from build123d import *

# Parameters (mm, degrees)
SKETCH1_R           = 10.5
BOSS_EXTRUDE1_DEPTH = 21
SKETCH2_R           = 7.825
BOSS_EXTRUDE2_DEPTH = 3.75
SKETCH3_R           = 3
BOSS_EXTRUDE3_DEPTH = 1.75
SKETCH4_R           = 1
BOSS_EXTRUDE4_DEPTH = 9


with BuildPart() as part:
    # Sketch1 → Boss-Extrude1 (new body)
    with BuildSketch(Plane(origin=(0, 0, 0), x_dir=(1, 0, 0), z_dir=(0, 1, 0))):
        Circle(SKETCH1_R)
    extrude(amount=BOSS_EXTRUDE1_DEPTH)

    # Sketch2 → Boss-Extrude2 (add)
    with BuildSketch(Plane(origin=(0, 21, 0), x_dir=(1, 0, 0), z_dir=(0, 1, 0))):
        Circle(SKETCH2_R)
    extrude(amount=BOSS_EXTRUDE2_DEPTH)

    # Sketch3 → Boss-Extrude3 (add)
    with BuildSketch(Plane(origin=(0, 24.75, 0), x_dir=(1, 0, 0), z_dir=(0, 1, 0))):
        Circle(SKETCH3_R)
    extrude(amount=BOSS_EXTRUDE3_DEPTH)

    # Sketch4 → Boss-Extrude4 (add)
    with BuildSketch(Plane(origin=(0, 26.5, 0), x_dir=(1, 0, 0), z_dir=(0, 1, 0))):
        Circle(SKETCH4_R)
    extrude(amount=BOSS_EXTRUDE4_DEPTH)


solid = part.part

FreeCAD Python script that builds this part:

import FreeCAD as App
import Part
import Sketcher

doc = App.newDocument("Part")
body = doc.addObject("PartDesign::Body", "Body")

# Sketch on XZ plane
sketch1 = doc.addObject("Sketcher::SketchObject", "Sketch")
body.addObject(sketch1)
sketch1.AttachmentSupport = (doc.XZ_Plane, [""])
sketch1.MapMode = "FlatFace"
sketch1.addGeometry(Part.Circle(App.Vector(0, 0, 0), App.Vector(0, 0, 1), 10), False)
sketch1.addConstraint([
    Sketcher.Constraint("Coincident", 0, 3, -1, 1),
    Sketcher.Constraint("Diameter", 0, 21.0),
])
pad1 = doc.addObject("PartDesign::Pad", "Pad")
body.addObject(pad1)
pad1.Profile = sketch1
pad1.Length = 21
pad1.Reversed = True

# Sketch on XZ plane
sketch2 = doc.addObject("Sketcher::SketchObject", "Sketch001")
body.addObject(sketch2)
sketch2.AttachmentSupport = (doc.XZ_Plane, [""])
sketch2.MapMode = "FlatFace"
sketch2.AttachmentOffset = App.Placement(App.Vector(0, 0, -21), App.Rotation())
sketch2.addGeometry(Part.Circle(App.Vector(0, 0, 0), App.Vector(0, 0, 1), 8), False)
sketch2.addConstraint([
    Sketcher.Constraint("Coincident", 0, 3, -1, 1),
    Sketcher.Constraint("Diameter", 0, 15.65),
])
pad2 = doc.addObject("PartDesign::Pad", "Pad001")
body.addObject(pad2)
pad2.Profile = sketch2
pad2.Length = 3.75
pad2.Reversed = True

# Sketch on XZ plane
sketch3 = doc.addObject("Sketcher::SketchObject", "Sketch002")
body.addObject(sketch3)
sketch3.AttachmentSupport = (doc.XZ_Plane, [""])
sketch3.MapMode = "FlatFace"
sketch3.AttachmentOffset = App.Placement(App.Vector(0, 0, -24.75), App.Rotation())
sketch3.addGeometry(Part.Circle(App.Vector(0, 0, 0), App.Vector(0, 0, 1), 3), False)
sketch3.addConstraint([
    Sketcher.Constraint("Coincident", 0, 3, -1, 1),
    Sketcher.Constraint("Diameter", 0, 6.0),
])
pad3 = doc.addObject("PartDesign::Pad", "Pad002")
body.addObject(pad3)
pad3.Profile = sketch3
pad3.Length = 1.75
pad3.Reversed = True

# Sketch on XZ plane
sketch4 = doc.addObject("Sketcher::SketchObject", "Sketch003")
body.addObject(sketch4)
sketch4.AttachmentSupport = (doc.XZ_Plane, [""])
sketch4.MapMode = "FlatFace"
sketch4.AttachmentOffset = App.Placement(App.Vector(0, 0, -26.5), App.Rotation())
sketch4.addGeometry(Part.Circle(App.Vector(0, 0, 0), App.Vector(0, 0, 1), 1), False)
sketch4.addConstraint([
    Sketcher.Constraint("Coincident", 0, 3, -1, 1),
    Sketcher.Constraint("Diameter", 0, 2.0),
])
pad4 = doc.addObject("PartDesign::Pad", "Pad003")
body.addObject(pad4)
pad4.Profile = sketch4
pad4.Length = 9
pad4.Reversed = True

doc.recompute()
